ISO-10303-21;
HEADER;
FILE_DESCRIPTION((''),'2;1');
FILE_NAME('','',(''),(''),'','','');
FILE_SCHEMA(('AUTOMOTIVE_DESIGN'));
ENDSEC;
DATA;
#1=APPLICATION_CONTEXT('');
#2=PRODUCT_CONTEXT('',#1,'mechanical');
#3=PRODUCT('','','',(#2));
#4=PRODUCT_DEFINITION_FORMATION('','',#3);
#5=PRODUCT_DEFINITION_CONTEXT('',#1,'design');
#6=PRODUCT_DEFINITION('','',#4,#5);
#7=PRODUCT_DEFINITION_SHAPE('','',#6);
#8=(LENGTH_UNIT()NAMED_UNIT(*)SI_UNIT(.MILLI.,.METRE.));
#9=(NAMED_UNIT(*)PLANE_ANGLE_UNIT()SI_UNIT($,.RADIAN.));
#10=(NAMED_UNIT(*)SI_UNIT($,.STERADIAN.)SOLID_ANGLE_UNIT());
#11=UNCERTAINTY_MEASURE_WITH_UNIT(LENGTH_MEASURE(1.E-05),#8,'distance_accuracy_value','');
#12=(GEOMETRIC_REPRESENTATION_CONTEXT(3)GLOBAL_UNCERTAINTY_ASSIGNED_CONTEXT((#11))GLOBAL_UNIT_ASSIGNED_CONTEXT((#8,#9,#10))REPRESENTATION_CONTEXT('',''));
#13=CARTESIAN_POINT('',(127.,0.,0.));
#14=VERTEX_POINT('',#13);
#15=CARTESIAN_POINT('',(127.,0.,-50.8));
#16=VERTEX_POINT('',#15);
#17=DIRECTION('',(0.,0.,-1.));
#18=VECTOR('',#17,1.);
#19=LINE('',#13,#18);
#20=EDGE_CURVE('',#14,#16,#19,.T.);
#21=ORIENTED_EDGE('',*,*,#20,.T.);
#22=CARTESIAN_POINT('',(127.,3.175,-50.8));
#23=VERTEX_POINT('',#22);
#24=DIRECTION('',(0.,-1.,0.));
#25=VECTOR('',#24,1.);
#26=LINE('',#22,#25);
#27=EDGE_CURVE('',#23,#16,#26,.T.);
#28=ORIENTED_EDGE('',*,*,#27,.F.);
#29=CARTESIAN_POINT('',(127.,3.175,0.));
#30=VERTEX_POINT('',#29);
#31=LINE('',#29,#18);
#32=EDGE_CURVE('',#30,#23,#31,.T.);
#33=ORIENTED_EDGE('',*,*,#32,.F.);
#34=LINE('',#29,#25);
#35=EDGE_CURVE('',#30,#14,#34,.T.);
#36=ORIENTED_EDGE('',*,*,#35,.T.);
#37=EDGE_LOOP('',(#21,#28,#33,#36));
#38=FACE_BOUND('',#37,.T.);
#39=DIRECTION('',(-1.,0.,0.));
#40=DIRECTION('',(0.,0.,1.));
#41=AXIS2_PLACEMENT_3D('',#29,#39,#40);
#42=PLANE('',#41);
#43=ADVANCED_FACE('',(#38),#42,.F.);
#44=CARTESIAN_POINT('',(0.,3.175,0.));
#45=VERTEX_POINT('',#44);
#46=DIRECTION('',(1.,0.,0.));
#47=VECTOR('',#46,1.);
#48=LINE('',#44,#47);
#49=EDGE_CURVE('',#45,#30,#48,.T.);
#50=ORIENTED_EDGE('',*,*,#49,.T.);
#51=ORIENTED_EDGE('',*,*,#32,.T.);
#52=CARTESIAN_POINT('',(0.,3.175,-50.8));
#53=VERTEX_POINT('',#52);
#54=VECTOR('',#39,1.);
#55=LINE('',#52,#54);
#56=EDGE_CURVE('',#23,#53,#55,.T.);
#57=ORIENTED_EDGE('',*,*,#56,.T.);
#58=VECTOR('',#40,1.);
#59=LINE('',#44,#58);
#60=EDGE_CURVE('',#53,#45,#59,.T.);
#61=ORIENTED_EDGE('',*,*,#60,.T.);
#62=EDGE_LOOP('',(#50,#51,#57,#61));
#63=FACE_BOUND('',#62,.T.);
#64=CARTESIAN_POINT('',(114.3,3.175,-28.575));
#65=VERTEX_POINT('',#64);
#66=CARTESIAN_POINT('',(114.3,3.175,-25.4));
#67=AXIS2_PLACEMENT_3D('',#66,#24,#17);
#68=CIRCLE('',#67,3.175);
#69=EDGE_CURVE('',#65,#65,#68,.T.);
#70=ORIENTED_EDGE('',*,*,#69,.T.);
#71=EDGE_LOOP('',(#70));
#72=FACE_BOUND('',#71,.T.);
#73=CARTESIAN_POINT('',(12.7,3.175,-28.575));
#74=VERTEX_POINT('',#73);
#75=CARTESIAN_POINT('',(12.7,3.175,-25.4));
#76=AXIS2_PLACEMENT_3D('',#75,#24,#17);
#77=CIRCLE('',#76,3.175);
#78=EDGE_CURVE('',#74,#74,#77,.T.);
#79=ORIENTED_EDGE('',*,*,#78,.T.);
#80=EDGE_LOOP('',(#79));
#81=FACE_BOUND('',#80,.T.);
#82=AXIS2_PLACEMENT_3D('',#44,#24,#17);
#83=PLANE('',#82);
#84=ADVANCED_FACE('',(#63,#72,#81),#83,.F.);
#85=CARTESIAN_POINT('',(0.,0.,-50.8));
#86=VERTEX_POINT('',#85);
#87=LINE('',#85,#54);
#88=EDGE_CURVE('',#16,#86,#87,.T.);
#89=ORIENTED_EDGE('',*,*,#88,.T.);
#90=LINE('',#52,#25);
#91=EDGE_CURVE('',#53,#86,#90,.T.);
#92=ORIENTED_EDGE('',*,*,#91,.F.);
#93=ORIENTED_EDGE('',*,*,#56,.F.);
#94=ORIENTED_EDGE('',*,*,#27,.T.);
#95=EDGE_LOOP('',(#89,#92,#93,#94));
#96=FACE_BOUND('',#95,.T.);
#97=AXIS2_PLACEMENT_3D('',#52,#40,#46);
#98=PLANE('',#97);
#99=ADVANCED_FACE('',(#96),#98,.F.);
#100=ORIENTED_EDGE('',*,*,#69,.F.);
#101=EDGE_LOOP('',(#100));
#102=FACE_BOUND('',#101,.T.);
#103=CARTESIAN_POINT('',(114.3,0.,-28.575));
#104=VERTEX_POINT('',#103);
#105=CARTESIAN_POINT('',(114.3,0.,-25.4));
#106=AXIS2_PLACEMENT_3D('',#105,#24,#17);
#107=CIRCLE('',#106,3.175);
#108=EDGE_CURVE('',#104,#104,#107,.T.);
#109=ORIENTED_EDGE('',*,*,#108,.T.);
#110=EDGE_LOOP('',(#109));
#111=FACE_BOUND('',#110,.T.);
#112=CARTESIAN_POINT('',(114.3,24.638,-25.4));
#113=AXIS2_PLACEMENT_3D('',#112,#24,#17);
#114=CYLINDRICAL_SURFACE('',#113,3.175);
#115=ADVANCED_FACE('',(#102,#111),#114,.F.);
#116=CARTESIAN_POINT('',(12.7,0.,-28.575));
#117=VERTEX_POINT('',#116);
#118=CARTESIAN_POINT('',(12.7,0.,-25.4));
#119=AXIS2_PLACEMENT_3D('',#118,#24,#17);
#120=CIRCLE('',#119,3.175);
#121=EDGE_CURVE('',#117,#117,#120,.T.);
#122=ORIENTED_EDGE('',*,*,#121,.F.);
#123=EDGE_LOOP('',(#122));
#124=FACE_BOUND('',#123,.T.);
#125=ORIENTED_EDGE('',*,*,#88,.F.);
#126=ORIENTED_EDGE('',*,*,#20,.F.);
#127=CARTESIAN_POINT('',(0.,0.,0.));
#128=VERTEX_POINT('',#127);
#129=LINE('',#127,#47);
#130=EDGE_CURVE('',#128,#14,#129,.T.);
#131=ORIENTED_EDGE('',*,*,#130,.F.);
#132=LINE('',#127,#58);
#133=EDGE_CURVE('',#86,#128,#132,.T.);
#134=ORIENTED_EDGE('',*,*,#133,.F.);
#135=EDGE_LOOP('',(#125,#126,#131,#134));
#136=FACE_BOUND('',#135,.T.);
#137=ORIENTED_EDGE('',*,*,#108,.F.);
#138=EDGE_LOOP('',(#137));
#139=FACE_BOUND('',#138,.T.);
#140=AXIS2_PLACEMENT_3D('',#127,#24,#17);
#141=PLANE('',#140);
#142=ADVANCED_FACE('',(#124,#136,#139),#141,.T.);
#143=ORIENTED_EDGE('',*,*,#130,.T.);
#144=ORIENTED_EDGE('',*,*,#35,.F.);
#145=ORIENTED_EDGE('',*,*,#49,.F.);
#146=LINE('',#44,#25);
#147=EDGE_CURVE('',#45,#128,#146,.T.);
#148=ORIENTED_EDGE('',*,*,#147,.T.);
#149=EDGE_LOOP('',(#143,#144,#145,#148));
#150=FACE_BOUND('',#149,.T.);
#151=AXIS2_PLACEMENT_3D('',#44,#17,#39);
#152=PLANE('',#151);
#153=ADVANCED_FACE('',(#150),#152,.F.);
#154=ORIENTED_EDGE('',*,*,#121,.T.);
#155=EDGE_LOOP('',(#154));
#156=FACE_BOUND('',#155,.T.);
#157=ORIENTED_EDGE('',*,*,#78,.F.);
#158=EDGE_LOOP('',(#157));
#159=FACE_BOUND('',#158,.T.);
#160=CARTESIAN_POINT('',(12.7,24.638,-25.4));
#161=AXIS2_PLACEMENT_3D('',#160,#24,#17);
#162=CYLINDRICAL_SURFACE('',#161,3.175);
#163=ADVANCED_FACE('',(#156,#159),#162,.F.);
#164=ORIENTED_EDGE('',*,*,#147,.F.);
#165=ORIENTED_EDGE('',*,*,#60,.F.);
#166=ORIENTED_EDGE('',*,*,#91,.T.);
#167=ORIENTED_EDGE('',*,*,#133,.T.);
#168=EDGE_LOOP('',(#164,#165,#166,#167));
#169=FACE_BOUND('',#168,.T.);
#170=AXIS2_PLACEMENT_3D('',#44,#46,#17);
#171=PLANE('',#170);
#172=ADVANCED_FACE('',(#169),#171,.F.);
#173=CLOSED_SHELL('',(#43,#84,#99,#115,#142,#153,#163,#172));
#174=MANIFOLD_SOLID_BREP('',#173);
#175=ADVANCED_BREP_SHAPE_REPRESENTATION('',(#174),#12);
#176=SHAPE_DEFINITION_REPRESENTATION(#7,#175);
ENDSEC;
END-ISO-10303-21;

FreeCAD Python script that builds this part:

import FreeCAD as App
import Part
import Sketcher
from FreeCAD import Vector
Q = App.Units.Quantity

doc = App.newDocument("Part")
body = doc.addObject("PartDesign::Body", "Body")

# Sketch on XZ plane
sketch1 = body.newObject("Sketcher::SketchObject", "Sketch")
sketch1.AttachmentSupport = (doc.getObject("XZ_Plane"), [""])
sketch1.MapMode = "FlatFace"
sketch1.addGeometry([
    Part.LineSegment(Vector(0, -50.8, 0), Vector(0, 0, 0)),
    Part.LineSegment(Vector(0, 0, 0), Vector(127, 0, 0)),
    Part.LineSegment(Vector(127, 0, 0), Vector(127, -50.8, 0)),
    Part.LineSegment(Vector(127, -50.8, 0), Vector(0, -50.8, 0)),
], False)
sketch1.addConstraint([
    Sketcher.Constraint("Coincident", 0, 2, 1, 1),
    Sketcher.Constraint("Coincident", 1, 2, 2, 1),
    Sketcher.Constraint("Coincident", 2, 2, 3, 1),
    Sketcher.Constraint("Coincident", 3, 2, 0, 1),
    Sketcher.Constraint("Vertical", 0),
    Sketcher.Constraint("Horizontal", 1),
    Sketcher.Constraint("Vertical", 2),
    Sketcher.Constraint("Horizontal", 3),
    Sketcher.Constraint("Coincident", 0, 2, -1, 1),
    Sketcher.Constraint("DistanceX", 1, 1, 1, 2, Q("5 in")),
    Sketcher.Constraint("DistanceY", 0, 1, 0, 2, Q("2 in")),
])
pad1 = body.newObject("PartDesign::Pad", "Pad")
pad1.Profile = sketch1
pad1.Length = Q("0.125 in")
pad1.Reversed = True

# Sketch on XZ plane
sketch2 = body.newObject("Sketcher::SketchObject", "Sketch001")
sketch2.AttachmentSupport = (doc.getObject("XZ_Plane"), [""])
sketch2.MapMode = "FlatFace"
sketch2.addGeometry([
    Part.Circle(Vector(114.3, -25.4, 0), Vector(0, 0, 1), 3.175),
    Part.Circle(Vector(12.7, -25.4, 0), Vector(0, 0, 1), 3.175),
], False)
sketch2.addConstraint([
    Sketcher.Constraint("Equal", 0, 1),
    Sketcher.Constraint("Horizontal", 0, 3, 1, 3),
    Sketcher.Constraint("Diameter", 0, Q("0.25 in")),
    Sketcher.Constraint("DistanceY", 0, 3, -1, 1, Q("1 in")),
    Sketcher.Constraint("DistanceX", 1, 3, 0, 3, Q("4 in")),
    Sketcher.Constraint("DistanceX", -1, 1, 0, 3, Q("4.5 in")),
])
pocket1 = body.newObject("PartDesign::Pocket", "Pocket")
pocket1.Profile = sketch2
pocket1.Length = Q("0.97 in")

doc.recompute()
